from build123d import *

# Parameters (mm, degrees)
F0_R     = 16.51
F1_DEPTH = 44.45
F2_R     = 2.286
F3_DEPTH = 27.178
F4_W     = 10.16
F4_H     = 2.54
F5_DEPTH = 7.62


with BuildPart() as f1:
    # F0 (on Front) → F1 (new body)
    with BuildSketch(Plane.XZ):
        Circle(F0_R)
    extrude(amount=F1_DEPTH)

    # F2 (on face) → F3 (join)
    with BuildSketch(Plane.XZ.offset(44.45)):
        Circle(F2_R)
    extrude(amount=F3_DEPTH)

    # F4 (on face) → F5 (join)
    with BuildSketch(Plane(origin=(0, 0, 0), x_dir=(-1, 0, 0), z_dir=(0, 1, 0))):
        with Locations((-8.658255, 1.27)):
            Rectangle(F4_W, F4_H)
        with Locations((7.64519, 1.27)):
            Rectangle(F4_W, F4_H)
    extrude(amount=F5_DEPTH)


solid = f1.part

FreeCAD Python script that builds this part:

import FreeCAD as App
import Part
import Sketcher

V = App.Vector
Q = App.Units.Quantity

doc = App.newDocument("Part")
body = doc.addObject("PartDesign::Body", "Body")

# Sketch on XZ plane
sketch1 = body.newObject("Sketcher::SketchObject", "Sketch")
sketch1.AttachmentSupport = (doc.getObject("XZ_Plane"), [""])
sketch1.MapMode = "FlatFace"
sketch1.addGeometry(Part.Circle(V(0, 0, 0), V(0, 0, 1), 16.51), False)
sketch1.addConstraint(Sketcher.Constraint("Coincident", 0, 3, -1, 1))
sketch1.addConstraint(Sketcher.Constraint("Diameter", 0, Q("1.3 in")))
pad1 = body.newObject("PartDesign::Pad", "Pad")
pad1.Profile = sketch1
pad1.Length = Q("1.75 in")

# Sketch on XZ plane
sketch2 = body.newObject("Sketcher::SketchObject", "Sketch001")
sketch2.AttachmentSupport = (doc.getObject("XZ_Plane"), [""])
sketch2.MapMode = "FlatFace"
sketch2.AttachmentOffset = App.Placement(V(0, 0, 1.75 * 25.4), App.Rotation())
sketch2.addGeometry(Part.Circle(V(0, 0, 0), V(0, 0, 1), 2.286), False)
sketch2.addConstraint(Sketcher.Constraint("Coincident", 0, 3, -1, 1))
sketch2.addConstraint(Sketcher.Constraint("Diameter", 0, Q("0.18 in")))
pad2 = body.newObject("PartDesign::Pad", "Pad001")
pad2.Profile = sketch2
pad2.Length = Q("1.07 in")

# Sketch on XZ plane
sketch3 = body.newObject("Sketcher::SketchObject", "Sketch002")
sketch3.AttachmentSupport = (doc.getObject("XZ_Plane"), [""])
sketch3.MapMode = "FlatFace"
sketch3.addGeometry(Part.LineSegment(V(13.738255, 2.54, 0), V(13.738255, 0, 0)), False)
sketch3.addGeometry(Part.LineSegment(V(13.738255, 0, 0), V(3.578255, 0, 0)), False)
sketch3.addGeometry(Part.LineSegment(V(3.578255, 0, 0), V(3.578255, 2.54, 0)), False)
sketch3.addGeometry(Part.LineSegment(V(3.578255, 2.54, 0), V(13.738255, 2.54, 0)), False)
sketch3.addGeometry(Part.LineSegment(V(-2.56519, 2.54, 0), V(-2.56519, 0, 0)), False)
sketch3.addGeometry(Part.LineSegment(V(-2.56519, 0, 0), V(-12.72519, 0, 0)), False)
sketch3.addGeometry(Part.LineSegment(V(-12.72519, 0, 0), V(-12.72519, 2.54, 0)), False)
sketch3.addGeometry(Part.LineSegment(V(-12.72519, 2.54, 0), V(-2.56519, 2.54, 0)), False)
sketch3.addConstraint(Sketcher.Constraint("Coincident", 0, 2, 1, 1))
sketch3.addConstraint(Sketcher.Constraint("Coincident", 1, 2, 2, 1))
sketch3.addConstraint(Sketcher.Constraint("Coincident", 2, 2, 3, 1))
sketch3.addConstraint(Sketcher.Constraint("Coincident", 3, 2, 0, 1))
sketch3.addConstraint(Sketcher.Constraint("Coincident", 4, 2, 5, 1))
sketch3.addConstraint(Sketcher.Constraint("Coincident", 5, 2, 6, 1))
sketch3.addConstraint(Sketcher.Constraint("Coincident", 6, 2, 7, 1))
sketch3.addConstraint(Sketcher.Constraint("Coincident", 7, 2, 4, 1))
sketch3.addConstraint(Sketcher.Constraint("Vertical", 0))
sketch3.addConstraint(Sketcher.Constraint("Horizontal", 1))
sketch3.addConstraint(Sketcher.Constraint("Vertical", 2))
sketch3.addConstraint(Sketcher.Constraint("Horizontal", 3))
sketch3.addConstraint(Sketcher.Constraint("Vertical", 4))
sketch3.addConstraint(Sketcher.Constraint("Horizontal", 5))
sketch3.addConstraint(Sketcher.Constraint("Vertical", 6))
sketch3.addConstraint(Sketcher.Constraint("Horizontal", 7))
sketch3.addConstraint(Sketcher.Constraint("PointOnObject", 0, 2, -1))
sketch3.addConstraint(Sketcher.Constraint("PointOnObject", 4, 2, -1))
sketch3.addConstraint(Sketcher.Constraint("Horizontal", 3, 2, 6, 2))
sketch3.addConstraint(Sketcher.Constraint("Equal", 3, 5))
sketch3.addConstraint(Sketcher.Constraint("DistanceX", 1, 2, 1, 1, Q("0.4 in")))
sketch3.addConstraint(Sketcher.Constraint("DistanceY", 0, 2, 0, 1, Q("0.1 in")))
sketch3.addConstraint(Sketcher.Constraint("DistanceX", 4, 2, -1, 1, 2.56519))
sketch3.addConstraint(Sketcher.Constraint("DistanceX", -1, 1, 0, 2, 13.738255))
pad3 = body.newObject("PartDesign::Pad", "Pad002")
pad3.Profile = sketch3
pad3.Length = Q("0.3 in")
pad3.Reversed = True

doc.recompute()
